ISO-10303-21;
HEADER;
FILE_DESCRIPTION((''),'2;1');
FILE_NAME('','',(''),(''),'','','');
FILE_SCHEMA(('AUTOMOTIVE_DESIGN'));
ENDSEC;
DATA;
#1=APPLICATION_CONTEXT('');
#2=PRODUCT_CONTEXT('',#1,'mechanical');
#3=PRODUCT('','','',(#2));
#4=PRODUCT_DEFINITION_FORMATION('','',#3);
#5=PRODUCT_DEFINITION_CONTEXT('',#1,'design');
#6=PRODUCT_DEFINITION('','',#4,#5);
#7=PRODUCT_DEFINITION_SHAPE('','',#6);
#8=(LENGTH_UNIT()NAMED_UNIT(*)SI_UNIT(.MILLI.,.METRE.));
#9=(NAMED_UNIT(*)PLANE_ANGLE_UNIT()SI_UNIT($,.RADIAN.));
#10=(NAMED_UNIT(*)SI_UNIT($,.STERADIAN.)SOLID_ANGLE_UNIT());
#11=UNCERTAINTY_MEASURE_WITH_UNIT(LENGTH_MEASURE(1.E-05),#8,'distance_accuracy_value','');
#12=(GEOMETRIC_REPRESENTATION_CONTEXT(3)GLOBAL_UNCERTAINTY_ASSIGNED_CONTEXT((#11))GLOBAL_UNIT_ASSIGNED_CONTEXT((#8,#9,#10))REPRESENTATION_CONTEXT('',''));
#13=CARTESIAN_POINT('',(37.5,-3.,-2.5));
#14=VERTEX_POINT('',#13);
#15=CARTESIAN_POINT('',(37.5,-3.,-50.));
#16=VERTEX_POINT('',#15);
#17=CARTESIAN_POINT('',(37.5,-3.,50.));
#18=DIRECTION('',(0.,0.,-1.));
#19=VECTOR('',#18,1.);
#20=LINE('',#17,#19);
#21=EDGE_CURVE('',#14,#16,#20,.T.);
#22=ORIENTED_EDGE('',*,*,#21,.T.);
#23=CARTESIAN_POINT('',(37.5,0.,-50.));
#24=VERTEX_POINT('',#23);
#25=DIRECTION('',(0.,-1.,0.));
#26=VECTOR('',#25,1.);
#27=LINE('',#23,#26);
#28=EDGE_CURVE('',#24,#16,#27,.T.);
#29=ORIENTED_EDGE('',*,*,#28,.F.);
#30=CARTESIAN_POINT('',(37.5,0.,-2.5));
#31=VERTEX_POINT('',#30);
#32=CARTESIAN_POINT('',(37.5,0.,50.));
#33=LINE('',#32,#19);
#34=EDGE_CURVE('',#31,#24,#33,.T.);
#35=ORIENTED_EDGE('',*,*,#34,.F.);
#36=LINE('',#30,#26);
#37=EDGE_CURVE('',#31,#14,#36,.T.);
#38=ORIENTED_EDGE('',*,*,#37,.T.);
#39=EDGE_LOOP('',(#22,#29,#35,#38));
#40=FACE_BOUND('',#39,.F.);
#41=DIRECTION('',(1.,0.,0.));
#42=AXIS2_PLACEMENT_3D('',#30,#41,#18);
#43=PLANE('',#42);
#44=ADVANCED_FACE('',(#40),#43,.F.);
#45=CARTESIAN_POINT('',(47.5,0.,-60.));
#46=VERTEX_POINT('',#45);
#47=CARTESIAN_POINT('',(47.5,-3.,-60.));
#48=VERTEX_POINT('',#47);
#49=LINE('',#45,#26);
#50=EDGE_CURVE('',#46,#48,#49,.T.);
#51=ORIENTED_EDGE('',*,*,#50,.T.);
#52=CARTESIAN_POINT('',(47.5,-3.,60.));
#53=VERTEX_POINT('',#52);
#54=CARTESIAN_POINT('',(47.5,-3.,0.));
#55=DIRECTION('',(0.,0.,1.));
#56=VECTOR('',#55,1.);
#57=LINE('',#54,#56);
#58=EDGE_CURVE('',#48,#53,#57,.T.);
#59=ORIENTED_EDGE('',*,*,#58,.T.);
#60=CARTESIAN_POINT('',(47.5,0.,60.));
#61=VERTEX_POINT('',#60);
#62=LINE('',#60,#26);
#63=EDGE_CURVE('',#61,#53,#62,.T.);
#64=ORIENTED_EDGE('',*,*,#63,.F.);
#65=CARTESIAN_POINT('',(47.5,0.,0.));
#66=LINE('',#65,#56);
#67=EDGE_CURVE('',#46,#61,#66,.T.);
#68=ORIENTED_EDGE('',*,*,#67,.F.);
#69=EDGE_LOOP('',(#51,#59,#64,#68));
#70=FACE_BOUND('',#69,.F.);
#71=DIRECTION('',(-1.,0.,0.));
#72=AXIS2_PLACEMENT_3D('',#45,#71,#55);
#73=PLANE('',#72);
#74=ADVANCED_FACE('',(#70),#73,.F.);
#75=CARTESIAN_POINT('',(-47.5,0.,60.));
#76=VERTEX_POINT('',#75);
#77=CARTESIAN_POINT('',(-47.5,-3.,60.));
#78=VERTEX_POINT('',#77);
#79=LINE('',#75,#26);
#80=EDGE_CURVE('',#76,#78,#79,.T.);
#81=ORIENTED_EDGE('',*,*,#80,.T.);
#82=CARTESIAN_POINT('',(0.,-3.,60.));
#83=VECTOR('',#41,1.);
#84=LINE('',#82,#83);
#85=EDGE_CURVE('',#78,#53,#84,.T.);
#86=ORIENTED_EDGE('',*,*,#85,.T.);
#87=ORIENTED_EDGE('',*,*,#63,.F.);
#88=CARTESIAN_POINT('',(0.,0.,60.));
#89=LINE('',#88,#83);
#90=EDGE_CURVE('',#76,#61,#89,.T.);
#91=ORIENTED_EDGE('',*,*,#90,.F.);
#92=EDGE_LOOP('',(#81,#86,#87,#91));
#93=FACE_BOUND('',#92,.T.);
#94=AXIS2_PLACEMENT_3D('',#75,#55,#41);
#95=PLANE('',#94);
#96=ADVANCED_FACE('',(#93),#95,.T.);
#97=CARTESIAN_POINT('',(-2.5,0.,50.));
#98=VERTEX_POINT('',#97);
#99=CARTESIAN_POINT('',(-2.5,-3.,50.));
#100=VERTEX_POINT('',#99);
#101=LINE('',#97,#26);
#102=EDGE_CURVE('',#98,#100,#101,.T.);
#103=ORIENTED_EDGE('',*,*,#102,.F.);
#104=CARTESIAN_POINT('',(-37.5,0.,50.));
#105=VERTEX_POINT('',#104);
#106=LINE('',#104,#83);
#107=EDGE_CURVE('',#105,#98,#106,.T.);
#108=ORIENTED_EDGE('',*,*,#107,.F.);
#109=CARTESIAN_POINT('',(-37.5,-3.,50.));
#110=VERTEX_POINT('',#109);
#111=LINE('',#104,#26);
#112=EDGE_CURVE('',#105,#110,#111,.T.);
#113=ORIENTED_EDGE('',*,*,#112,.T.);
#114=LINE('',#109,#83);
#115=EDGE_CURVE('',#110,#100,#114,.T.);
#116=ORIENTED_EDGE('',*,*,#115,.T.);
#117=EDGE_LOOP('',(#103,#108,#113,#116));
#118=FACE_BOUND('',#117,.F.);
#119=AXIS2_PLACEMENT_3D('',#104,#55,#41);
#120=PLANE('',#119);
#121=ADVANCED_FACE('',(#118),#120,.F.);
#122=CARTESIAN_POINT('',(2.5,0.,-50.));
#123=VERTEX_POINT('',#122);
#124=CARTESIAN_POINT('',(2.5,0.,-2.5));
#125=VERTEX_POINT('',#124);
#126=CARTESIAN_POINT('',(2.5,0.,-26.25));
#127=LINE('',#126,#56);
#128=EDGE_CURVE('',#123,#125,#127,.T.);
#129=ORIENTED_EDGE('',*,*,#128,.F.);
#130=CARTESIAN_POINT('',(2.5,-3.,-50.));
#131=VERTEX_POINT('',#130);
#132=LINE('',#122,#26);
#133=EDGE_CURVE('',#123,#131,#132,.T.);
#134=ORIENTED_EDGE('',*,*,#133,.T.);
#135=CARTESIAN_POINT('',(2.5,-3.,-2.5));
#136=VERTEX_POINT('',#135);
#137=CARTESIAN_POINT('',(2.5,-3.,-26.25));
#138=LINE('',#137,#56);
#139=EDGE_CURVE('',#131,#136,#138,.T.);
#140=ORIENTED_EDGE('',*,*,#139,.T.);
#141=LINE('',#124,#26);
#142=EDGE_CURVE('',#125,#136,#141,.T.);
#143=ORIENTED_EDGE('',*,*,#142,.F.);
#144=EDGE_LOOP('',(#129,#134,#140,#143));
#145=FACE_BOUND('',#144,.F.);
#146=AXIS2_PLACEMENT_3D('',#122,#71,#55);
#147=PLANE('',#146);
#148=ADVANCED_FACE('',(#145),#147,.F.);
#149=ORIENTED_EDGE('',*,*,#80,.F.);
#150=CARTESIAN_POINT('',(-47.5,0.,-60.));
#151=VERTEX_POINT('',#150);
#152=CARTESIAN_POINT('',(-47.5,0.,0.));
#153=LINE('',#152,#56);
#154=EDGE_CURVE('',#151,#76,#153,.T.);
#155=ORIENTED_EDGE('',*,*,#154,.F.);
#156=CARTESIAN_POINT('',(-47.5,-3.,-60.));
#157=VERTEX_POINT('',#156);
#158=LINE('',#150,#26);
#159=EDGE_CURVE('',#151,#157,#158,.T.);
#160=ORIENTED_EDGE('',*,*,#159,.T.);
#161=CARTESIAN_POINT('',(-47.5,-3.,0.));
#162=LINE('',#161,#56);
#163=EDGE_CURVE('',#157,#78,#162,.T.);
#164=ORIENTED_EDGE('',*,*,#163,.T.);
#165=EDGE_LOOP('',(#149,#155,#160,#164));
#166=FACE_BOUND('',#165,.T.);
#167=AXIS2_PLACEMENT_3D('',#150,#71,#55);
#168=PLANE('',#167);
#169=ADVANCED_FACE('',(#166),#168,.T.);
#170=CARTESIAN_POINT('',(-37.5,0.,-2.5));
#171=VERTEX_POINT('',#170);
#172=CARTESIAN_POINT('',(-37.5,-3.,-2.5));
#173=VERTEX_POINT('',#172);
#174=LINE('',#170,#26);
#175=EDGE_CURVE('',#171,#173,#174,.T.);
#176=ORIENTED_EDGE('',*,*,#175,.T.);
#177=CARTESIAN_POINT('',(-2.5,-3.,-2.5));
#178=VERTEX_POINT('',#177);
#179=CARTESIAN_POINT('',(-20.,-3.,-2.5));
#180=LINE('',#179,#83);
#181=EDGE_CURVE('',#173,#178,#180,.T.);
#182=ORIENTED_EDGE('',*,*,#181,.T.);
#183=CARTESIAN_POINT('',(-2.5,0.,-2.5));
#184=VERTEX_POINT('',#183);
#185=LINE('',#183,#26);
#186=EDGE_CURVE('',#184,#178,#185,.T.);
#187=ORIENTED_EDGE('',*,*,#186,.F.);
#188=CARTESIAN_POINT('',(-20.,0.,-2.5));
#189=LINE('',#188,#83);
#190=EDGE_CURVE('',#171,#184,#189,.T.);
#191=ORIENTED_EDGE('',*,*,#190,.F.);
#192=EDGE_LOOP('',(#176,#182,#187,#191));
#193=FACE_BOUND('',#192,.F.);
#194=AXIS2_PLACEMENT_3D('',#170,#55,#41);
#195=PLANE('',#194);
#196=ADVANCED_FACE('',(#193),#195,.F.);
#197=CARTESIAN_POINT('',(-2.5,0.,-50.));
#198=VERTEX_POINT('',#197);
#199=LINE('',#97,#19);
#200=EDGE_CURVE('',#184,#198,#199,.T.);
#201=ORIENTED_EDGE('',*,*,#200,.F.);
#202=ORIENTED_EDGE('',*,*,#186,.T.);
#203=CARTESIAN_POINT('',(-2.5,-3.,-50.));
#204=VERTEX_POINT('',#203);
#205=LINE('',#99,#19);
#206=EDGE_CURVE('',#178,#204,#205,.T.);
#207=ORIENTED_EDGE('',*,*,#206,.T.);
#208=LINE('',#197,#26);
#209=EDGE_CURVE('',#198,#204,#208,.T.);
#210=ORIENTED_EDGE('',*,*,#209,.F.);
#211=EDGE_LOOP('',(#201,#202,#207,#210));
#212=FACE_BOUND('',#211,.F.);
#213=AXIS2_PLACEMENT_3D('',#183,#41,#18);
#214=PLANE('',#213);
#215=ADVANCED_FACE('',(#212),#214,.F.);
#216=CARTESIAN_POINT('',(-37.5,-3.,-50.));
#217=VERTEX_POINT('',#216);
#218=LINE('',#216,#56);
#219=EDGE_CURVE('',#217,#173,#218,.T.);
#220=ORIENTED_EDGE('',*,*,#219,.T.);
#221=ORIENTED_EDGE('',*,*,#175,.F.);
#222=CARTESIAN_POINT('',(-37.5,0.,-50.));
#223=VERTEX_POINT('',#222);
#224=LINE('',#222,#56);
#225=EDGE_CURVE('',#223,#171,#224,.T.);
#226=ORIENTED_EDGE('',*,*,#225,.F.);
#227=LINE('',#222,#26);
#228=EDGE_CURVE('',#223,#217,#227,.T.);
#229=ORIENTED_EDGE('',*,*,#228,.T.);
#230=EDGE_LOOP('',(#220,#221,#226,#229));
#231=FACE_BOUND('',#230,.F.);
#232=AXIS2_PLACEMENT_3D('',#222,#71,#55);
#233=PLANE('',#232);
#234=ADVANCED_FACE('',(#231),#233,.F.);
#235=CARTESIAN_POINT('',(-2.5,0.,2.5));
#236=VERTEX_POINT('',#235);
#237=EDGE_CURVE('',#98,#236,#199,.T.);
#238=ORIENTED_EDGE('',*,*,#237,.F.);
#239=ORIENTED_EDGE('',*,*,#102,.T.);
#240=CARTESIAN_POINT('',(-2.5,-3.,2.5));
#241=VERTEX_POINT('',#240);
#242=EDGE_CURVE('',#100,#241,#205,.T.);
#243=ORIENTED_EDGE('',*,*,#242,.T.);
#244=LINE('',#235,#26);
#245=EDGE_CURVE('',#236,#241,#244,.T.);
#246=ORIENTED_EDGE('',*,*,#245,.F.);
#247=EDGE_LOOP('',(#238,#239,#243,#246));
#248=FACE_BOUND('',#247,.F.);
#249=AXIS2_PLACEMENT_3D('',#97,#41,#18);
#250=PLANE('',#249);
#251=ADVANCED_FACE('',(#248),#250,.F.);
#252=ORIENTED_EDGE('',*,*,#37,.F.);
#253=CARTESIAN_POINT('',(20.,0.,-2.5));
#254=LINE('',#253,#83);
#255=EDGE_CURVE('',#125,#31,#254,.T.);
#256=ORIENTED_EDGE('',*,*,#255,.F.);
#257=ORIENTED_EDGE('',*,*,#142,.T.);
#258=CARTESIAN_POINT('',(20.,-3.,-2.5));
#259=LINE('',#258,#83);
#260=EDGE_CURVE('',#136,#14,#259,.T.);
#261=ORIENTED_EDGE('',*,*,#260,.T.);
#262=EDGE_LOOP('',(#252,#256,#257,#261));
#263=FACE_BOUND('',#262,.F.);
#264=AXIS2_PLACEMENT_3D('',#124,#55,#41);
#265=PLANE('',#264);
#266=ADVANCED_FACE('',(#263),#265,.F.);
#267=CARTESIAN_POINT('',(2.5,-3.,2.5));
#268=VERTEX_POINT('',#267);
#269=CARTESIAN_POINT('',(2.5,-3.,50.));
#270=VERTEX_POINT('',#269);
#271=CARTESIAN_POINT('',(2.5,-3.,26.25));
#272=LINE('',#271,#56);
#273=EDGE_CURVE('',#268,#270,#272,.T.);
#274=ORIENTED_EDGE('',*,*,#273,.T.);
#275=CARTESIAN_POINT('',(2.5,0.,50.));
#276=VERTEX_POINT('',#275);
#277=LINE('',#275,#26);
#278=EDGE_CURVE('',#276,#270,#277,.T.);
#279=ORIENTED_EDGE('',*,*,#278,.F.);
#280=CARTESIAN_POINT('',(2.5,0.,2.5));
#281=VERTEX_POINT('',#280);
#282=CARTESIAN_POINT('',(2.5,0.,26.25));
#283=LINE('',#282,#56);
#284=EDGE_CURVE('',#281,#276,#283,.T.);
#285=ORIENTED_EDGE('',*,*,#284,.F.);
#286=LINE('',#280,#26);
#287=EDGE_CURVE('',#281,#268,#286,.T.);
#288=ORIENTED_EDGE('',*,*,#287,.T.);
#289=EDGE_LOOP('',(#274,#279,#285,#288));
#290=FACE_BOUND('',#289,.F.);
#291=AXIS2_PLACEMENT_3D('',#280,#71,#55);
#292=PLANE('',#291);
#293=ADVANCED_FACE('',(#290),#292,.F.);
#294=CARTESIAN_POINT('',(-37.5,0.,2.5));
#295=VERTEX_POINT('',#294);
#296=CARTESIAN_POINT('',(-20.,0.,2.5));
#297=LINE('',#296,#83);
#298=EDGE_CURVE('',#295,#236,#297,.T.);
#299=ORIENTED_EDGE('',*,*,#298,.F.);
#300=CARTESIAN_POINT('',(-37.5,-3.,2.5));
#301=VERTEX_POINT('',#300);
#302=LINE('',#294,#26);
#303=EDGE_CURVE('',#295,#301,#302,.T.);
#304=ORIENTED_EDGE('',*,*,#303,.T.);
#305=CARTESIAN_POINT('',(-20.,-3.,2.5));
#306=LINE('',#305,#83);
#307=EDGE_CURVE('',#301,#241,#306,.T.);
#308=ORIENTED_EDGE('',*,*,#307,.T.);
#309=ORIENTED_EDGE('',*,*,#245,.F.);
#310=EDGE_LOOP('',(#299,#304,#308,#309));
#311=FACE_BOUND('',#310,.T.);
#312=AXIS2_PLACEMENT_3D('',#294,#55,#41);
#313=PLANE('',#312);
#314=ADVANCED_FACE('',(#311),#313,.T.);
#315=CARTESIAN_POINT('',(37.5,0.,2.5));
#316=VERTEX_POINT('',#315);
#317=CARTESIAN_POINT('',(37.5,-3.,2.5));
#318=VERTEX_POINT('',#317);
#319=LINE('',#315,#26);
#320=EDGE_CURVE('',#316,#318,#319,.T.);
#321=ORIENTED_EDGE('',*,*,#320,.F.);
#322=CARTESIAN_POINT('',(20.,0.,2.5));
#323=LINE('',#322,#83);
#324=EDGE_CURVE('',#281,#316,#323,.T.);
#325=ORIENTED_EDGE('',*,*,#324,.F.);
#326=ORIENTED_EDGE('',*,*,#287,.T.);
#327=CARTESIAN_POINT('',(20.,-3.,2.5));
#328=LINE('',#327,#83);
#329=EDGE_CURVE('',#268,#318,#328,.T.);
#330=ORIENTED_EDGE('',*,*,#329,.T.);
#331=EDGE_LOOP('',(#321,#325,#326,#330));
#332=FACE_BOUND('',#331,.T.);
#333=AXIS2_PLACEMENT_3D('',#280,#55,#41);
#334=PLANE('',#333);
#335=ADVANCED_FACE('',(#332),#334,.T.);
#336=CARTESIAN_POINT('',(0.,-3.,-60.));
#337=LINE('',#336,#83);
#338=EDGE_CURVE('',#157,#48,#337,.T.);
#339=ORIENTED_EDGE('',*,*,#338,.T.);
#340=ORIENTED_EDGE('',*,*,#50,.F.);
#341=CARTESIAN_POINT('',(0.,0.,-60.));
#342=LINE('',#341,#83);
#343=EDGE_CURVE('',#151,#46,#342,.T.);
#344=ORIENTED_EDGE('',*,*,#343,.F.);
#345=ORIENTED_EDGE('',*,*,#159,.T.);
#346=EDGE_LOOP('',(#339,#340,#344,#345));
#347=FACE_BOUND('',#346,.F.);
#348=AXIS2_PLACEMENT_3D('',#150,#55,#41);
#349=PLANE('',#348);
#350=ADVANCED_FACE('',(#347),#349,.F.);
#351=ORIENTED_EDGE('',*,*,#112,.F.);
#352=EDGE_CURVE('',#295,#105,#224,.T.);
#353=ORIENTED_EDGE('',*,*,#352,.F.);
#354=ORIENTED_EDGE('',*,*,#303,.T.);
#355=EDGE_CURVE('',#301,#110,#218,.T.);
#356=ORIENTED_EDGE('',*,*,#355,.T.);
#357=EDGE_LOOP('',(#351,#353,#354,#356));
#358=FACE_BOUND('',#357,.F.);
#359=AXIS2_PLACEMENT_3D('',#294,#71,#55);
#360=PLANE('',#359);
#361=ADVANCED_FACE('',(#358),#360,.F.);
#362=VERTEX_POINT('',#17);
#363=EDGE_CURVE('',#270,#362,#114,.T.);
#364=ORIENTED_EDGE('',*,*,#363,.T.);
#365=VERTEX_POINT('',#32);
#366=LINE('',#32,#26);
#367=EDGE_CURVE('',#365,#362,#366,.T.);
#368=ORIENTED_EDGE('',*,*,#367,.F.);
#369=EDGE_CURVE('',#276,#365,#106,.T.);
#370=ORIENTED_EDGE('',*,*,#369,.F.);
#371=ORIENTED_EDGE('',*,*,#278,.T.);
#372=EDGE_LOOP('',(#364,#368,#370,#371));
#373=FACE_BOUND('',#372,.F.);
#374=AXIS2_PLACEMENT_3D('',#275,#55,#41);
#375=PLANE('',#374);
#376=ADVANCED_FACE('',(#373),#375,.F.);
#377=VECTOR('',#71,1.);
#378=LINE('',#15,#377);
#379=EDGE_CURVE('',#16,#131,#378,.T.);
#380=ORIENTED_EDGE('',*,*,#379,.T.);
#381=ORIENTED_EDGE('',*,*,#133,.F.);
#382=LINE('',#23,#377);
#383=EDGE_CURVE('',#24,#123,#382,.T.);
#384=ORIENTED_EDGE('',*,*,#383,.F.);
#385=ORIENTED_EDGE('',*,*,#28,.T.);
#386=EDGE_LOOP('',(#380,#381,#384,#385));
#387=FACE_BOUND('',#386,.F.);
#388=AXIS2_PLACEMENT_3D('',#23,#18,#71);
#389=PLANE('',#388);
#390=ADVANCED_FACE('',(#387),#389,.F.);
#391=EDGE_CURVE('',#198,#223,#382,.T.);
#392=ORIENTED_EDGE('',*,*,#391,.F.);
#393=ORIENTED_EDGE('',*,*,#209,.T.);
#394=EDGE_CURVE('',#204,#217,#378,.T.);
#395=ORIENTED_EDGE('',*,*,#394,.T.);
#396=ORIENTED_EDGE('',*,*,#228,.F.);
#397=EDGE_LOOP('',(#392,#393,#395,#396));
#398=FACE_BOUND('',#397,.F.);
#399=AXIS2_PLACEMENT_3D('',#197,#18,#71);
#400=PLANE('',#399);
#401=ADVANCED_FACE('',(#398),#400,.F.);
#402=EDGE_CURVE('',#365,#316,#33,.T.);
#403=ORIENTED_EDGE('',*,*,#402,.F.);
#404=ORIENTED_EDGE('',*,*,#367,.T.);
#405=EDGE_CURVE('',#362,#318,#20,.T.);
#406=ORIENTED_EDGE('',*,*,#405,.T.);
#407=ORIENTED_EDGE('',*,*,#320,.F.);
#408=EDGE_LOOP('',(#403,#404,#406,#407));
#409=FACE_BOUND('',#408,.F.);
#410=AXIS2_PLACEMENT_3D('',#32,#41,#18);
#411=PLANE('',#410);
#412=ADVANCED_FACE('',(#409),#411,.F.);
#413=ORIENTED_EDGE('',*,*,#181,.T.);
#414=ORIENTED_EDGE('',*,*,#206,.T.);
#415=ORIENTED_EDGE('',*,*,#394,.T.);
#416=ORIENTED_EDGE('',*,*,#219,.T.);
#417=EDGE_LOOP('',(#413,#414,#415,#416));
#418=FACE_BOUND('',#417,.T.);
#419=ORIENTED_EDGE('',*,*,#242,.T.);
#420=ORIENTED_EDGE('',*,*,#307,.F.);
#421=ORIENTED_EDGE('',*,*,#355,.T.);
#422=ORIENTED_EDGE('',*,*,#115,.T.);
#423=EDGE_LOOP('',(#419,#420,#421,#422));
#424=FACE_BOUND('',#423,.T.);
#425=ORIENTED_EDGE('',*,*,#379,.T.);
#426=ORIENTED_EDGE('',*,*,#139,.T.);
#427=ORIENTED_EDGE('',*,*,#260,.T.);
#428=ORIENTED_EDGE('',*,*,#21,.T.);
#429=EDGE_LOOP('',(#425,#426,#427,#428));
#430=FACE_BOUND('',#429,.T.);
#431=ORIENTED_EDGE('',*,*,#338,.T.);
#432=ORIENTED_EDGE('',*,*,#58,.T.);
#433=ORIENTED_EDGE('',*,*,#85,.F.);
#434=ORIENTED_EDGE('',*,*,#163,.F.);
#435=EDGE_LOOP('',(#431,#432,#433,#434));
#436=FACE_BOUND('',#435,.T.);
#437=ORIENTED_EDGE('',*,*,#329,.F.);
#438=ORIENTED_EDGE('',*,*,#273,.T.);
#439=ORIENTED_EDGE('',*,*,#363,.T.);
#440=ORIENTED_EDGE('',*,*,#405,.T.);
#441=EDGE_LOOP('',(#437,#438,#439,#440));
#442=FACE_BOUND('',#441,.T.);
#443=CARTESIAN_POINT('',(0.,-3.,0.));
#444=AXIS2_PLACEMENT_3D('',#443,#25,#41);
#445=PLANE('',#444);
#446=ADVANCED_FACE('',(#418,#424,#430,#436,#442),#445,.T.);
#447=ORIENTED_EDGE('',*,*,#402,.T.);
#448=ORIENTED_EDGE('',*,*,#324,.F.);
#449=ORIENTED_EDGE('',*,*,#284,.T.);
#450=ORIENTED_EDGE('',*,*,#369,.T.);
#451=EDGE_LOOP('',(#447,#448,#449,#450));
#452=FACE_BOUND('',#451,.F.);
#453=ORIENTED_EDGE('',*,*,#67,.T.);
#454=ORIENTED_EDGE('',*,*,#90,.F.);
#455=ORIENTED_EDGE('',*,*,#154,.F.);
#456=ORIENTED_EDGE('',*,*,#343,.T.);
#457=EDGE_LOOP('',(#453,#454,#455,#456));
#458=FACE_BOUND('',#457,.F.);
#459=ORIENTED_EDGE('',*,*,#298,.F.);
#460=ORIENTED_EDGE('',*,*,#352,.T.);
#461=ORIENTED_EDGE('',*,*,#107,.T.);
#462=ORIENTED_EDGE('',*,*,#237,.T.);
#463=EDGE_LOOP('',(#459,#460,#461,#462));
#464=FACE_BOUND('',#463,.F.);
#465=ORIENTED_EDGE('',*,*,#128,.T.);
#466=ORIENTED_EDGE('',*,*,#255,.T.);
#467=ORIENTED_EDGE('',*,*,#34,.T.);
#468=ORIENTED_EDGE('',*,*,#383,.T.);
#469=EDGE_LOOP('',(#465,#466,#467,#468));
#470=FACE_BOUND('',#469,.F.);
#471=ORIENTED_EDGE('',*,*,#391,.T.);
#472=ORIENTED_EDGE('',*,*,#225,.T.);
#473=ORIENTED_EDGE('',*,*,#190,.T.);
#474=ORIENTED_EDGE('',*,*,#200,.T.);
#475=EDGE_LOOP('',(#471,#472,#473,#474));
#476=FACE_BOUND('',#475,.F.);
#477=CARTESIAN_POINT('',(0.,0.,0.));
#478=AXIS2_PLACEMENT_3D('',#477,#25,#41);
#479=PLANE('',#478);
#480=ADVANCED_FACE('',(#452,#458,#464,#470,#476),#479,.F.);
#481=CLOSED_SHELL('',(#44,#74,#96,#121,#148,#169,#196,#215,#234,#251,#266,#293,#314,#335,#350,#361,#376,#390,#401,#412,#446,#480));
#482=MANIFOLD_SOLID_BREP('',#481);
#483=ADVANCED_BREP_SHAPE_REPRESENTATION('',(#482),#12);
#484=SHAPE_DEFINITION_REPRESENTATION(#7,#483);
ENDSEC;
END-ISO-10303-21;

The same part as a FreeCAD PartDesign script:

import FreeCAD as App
import Part
import Sketcher
from FreeCAD import Vector
Q = App.Units.Quantity


def add_polygon(sketch, points):
    """Adds a closed chain of lines whose ends are joined by coincident constraints."""
    first, n = sketch.GeometryCount, len(points)
    for a, b in zip(points, points[1:] + points[:1]):
        sketch.addGeometry(Part.LineSegment(App.Vector(*a, 0), App.Vector(*b, 0)), False)
    for i in range(n):
        sketch.addConstraint(Sketcher.Constraint("Coincident", first + i, 2, first + (i + 1) % n, 1))

doc = App.newDocument("Part")
body = doc.addObject("PartDesign::Body", "Body")

sketch1 = doc.addObject("Sketcher::SketchObject", "Sketch")
body.addObject(sketch1)
sketch1.AttachmentSupport = (doc.XZ_Plane, [""])
sketch1.MapMode = "FlatFace"
add_polygon(sketch1, [(-48, 60), (-48, -60), (48, -60), (48, 60)])
add_polygon(sketch1, [(2, -50), (2, -2), (38, -2), (38, -50)])
add_polygon(sketch1, [(-2, 50), (-2, 2), (-38, 2), (-38, 50)])
add_polygon(sketch1, [(-2, -2), (-2, -50), (-38, -50), (-38, -2)])
add_polygon(sketch1, [(38, 2), (2, 2), (2, 50), (38, 50)])
sketch1.addConstraint([
    Sketcher.Constraint("Vertical", 0),
    Sketcher.Constraint("Horizontal", 1),
    Sketcher.Constraint("Vertical", 2),
    Sketcher.Constraint("Horizontal", 3),
    Sketcher.Constraint("Vertical", 4),
    Sketcher.Constraint("Horizontal", 5),
    Sketcher.Constraint("Vertical", 6),
    Sketcher.Constraint("Horizontal", 7),
    Sketcher.Constraint("Vertical", 8),
    Sketcher.Constraint("Horizontal", 9),
    Sketcher.Constraint("Vertical", 10),
    Sketcher.Constraint("Horizontal", 11),
    Sketcher.Constraint("Vertical", 12),
    Sketcher.Constraint("Horizontal", 13),
    Sketcher.Constraint("Vertical", 14),
    Sketcher.Constraint("Horizontal", 15),
    Sketcher.Constraint("Horizontal", 16),
    Sketcher.Constraint("Vertical", 17),
    Sketcher.Constraint("Horizontal", 18),
    Sketcher.Constraint("Vertical", 19),
    Sketcher.Constraint("Symmetric", 0, 2, 2, 2, -1, 1),
    Sketcher.Constraint("Symmetric", 4, 2, 8, 2, -1, 1),
    Sketcher.Constraint("Symmetric", 6, 2, 10, 2, -1, 1),
    Sketcher.Constraint("Symmetric", 15, 2, 16, 2, -1, 1),
    Sketcher.Constraint("Symmetric", 13, 2, 18, 2, -1, 1),
    Sketcher.Constraint("Symmetric", 7, 2, 12, 2, -2),
    Sketcher.Constraint("Symmetric", 5, 2, 14, 2, -2),
    Sketcher.Constraint("DistanceX", 1, 1, 1, 2, Q("95 mm")),
    Sketcher.Constraint("DistanceX", 5, 1, 5, 2, Q("35 mm")),
    Sketcher.Constraint("DistanceY", 0, 2, 0, 1, Q("120 mm")),
    Sketcher.Constraint("DistanceY", 4, 1, 4, 2, Q("47.5 mm")),
    Sketcher.Constraint("DistanceY", 6, 2, -1, 1, Q("50 mm")),
    Sketcher.Constraint("DistanceX", 4, 2, 1, 2, Q("45 mm")),
])
pad1 = doc.addObject("PartDesign::Pad", "Pad")
body.addObject(pad1)
pad1.Profile = sketch1
pad1.Length = 3

doc.recompute()
